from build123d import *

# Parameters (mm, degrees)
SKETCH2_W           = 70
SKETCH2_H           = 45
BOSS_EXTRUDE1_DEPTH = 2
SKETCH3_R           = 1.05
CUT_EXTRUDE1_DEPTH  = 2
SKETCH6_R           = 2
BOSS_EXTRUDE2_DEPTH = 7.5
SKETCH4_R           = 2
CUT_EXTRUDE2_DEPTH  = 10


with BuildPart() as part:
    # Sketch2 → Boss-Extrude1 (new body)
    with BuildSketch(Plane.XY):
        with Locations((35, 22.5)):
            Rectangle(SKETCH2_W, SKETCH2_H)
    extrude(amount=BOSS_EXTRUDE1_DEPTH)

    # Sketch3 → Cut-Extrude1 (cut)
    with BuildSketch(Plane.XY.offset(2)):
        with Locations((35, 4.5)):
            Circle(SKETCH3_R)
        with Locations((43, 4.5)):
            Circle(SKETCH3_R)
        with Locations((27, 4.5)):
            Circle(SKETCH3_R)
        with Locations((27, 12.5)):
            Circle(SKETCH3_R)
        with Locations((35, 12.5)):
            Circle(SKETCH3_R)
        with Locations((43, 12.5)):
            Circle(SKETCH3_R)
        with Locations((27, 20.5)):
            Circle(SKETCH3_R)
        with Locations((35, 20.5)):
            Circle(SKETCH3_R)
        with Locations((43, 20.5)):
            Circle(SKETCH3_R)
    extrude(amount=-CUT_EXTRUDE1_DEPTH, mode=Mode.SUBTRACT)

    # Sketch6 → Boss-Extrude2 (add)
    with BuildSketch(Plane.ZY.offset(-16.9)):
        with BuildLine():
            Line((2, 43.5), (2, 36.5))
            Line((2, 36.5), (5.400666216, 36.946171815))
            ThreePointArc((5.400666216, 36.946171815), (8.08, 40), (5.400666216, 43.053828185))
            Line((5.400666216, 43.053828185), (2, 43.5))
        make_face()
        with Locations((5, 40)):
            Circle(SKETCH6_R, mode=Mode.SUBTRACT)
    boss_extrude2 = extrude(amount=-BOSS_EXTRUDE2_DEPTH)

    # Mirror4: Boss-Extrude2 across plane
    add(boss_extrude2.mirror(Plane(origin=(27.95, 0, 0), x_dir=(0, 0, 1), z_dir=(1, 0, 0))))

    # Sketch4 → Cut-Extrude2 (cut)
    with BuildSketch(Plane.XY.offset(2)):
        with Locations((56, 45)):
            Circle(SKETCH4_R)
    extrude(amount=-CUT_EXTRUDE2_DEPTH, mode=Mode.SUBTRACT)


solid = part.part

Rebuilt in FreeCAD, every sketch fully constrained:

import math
import FreeCAD as App
import Part
import Sketcher

V = App.Vector

doc = App.newDocument("Part")
body = doc.addObject("PartDesign::Body", "Body")

sketch1 = doc.addObject("Sketcher::SketchObject", "Sketch")
body.addObject(sketch1)
sketch1.AttachmentSupport = (doc.XY_Plane, [""])
sketch1.MapMode = "FlatFace"
sketch1.addGeometry([
    Part.LineSegment(V(0, 45, 0), V(0, 0, 0)),
    Part.LineSegment(V(0, 0, 0), V(70, 0, 0)),
    Part.LineSegment(V(70, 0, 0), V(70, 45, 0)),
    Part.LineSegment(V(70, 45, 0), V(0, 45, 0)),
], False)
sketch1.addConstraint([
    Sketcher.Constraint("Coincident", 0, 2, 1, 1),
    Sketcher.Constraint("Coincident", 1, 2, 2, 1),
    Sketcher.Constraint("Coincident", 2, 2, 3, 1),
    Sketcher.Constraint("Coincident", 3, 2, 0, 1),
    Sketcher.Constraint("Vertical", 0),
    Sketcher.Constraint("Horizontal", 1),
    Sketcher.Constraint("Vertical", 2),
    Sketcher.Constraint("Horizontal", 3),
    Sketcher.Constraint("Coincident", 0, 2, -1, 1),
    Sketcher.Constraint("DistanceX", 1, 1, 1, 2, 70.0),
    Sketcher.Constraint("DistanceY", 0, 2, 0, 1, 45.0),
])
pad1 = doc.addObject("PartDesign::Pad", "Pad")
body.addObject(pad1)
pad1.Profile = sketch1
pad1.Length = 2

sketch2 = doc.addObject("Sketcher::SketchObject", "Sketch001")
body.addObject(sketch2)
sketch2.AttachmentSupport = (doc.XY_Plane, [""])
sketch2.MapMode = "FlatFace"
sketch2.AttachmentOffset = App.Placement(V(0, 0, 2), App.Rotation())
sketch2.addGeometry([
    Part.Circle(V(35, 4.5, 0), V(0, 0, 1), 1.05),
    Part.Circle(V(43, 4.5, 0), V(0, 0, 1), 1.05),
    Part.Circle(V(27, 4.5, 0), V(0, 0, 1), 1.05),
    Part.Circle(V(27, 12.5, 0), V(0, 0, 1), 1.05),
    Part.Circle(V(35, 12.5, 0), V(0, 0, 1), 1.05),
    Part.Circle(V(43, 12.5, 0), V(0, 0, 1), 1.05),
    Part.Circle(V(27, 20.5, 0), V(0, 0, 1), 1.05),
    Part.Circle(V(35, 20.5, 0), V(0, 0, 1), 1.05),
    Part.Circle(V(43, 20.5, 0), V(0, 0, 1), 1.05),
], False)
sketch2.addConstraint([
    Sketcher.Constraint("Equal", 0, 1),
    Sketcher.Constraint("Equal", 1, 2),
    Sketcher.Constraint("Equal", 2, 3),
    Sketcher.Constraint("Equal", 3, 4),
    Sketcher.Constraint("Equal", 4, 5),
    Sketcher.Constraint("Equal", 5, 6),
    Sketcher.Constraint("Equal", 6, 7),
    Sketcher.Constraint("Equal", 7, 8),
    Sketcher.Constraint("Horizontal", 0, 3, 1, 3),
    Sketcher.Constraint("Horizontal", 1, 3, 2, 3),
    Sketcher.Constraint("Horizontal", 3, 3, 4, 3),
    Sketcher.Constraint("Horizontal", 4, 3, 5, 3),
    Sketcher.Constraint("Horizontal", 6, 3, 7, 3),
    Sketcher.Constraint("Horizontal", 7, 3, 8, 3),
    Sketcher.Constraint("Vertical", 2, 3, 3, 3),
    Sketcher.Constraint("Vertical", 0, 3, 4, 3),
    Sketcher.Constraint("Vertical", 1, 3, 5, 3),
    Sketcher.Constraint("Vertical", 3, 3, 6, 3),
    Sketcher.Constraint("Vertical", 4, 3, 7, 3),
    Sketcher.Constraint("Vertical", 5, 3, 8, 3),
    Sketcher.Constraint("Diameter", 0, 2.1),
    Sketcher.Constraint("DistanceX", -1, 1, 0, 3, 35.0),
    Sketcher.Constraint("DistanceX", -1, 1, 1, 3, 43.0),
    Sketcher.Constraint("DistanceX", -1, 1, 2, 3, 27.0),
    Sketcher.Constraint("DistanceY", 2, 3, 3, 3, 8.0),
    Sketcher.Constraint("DistanceY", 3, 3, 6, 3, 8.0),
    Sketcher.Constraint("DistanceY", -1, 1, 0, 3, 4.5),
])
pocket1 = doc.addObject("PartDesign::Pocket", "Pocket")
body.addObject(pocket1)
pocket1.Profile = sketch2
pocket1.Length = 2

sketch3 = doc.addObject("Sketcher::SketchObject", "Sketch002")
body.addObject(sketch3)
sketch3.AttachmentSupport = (doc.YZ_Plane, [""])
sketch3.MapMode = "FlatFace"
sketch3.AttachmentOffset = App.Placement(V(0, 0, 16.9), App.Rotation())
sketch3.addGeometry([
    Part.LineSegment(V(43.5, 2, 0), V(36.5, 2, 0)),
    Part.LineSegment(V(36.5, 2, 0), V(36.946172, 5.400666, 0)),
    Part.ArcOfCircle(Part.Circle(V(40, 5, 0), V(0, 0, 1), 3.08), math.radians(7.474587), math.radians(172.525413)),
    Part.LineSegment(V(43.053828, 5.400666, 0), V(43.5, 2, 0)),
    Part.Circle(V(40, 5, 0), V(0, 0, 1), 2),
], False)
sketch3.addConstraint([
    Sketcher.Constraint("Coincident", 0, 2, 1, 1),
    Sketcher.Constraint("Tangent", 1, 2, 2, 2),
    Sketcher.Constraint("Tangent", 2, 1, 3, 1),
    Sketcher.Constraint("Coincident", 3, 2, 0, 1),
    Sketcher.Constraint("Horizontal", 0),
    Sketcher.Constraint("Coincident", 4, 3, 2, 3),
    Sketcher.Constraint("Horizontal", 1, 2, 2, 1),
    Sketcher.Constraint("Diameter", 4, 4.0),
    Sketcher.Constraint("DistanceX", 0, 2, 0, 1, 7.0),
    Sketcher.Constraint("Radius", 2, 3.08),
    Sketcher.Constraint("DistanceX", -1, 1, 2, 3, 40.0),
    Sketcher.Constraint("DistanceY", -1, 1, 2, 3, 5.0),
    Sketcher.Constraint("DistanceY", -1, 1, 0, 2, 2.0),
])
pad2 = doc.addObject("PartDesign::Pad", "Pad001")
body.addObject(pad2)
pad2.Profile = sketch3
pad2.Length = 7.5
doc.recompute()

datumplane = doc.addObject("PartDesign::Plane", "DatumPlane")
body.addObject(datumplane)
datumplane.AttachmentSupport = (doc.YZ_Plane, [""])
datumplane.MapMode = "FlatFace"
datumplane.AttachmentOffset = App.Placement(V(0, 0, 27.95), App.Rotation())
mirrored = doc.addObject("PartDesign::Mirrored", "Mirrored")
body.addObject(mirrored)
mirrored.Originals = [pad2]
mirrored.MirrorPlane = (datumplane, [""])
body.Tip = mirrored

sketch4 = doc.addObject("Sketcher::SketchObject", "Sketch003")
body.addObject(sketch4)
sketch4.AttachmentSupport = (doc.XY_Plane, [""])
sketch4.MapMode = "FlatFace"
sketch4.AttachmentOffset = App.Placement(V(0, 0, 2), App.Rotation())
sketch4.addGeometry(Part.Circle(V(56, 45, 0), V(0, 0, 1), 2), False)
sketch4.addConstraint([
    Sketcher.Constraint("Diameter", 0, 4.0),
    Sketcher.Constraint("DistanceX", -1, 1, 0, 3, 56.0),
    Sketcher.Constraint("DistanceY", -1, 1, 0, 3, 45.0),
])
pocket2 = doc.addObject("PartDesign::Pocket", "Pocket001")
body.addObject(pocket2)
pocket2.Profile = sketch4
pocket2.Length = 10

doc.recompute()
